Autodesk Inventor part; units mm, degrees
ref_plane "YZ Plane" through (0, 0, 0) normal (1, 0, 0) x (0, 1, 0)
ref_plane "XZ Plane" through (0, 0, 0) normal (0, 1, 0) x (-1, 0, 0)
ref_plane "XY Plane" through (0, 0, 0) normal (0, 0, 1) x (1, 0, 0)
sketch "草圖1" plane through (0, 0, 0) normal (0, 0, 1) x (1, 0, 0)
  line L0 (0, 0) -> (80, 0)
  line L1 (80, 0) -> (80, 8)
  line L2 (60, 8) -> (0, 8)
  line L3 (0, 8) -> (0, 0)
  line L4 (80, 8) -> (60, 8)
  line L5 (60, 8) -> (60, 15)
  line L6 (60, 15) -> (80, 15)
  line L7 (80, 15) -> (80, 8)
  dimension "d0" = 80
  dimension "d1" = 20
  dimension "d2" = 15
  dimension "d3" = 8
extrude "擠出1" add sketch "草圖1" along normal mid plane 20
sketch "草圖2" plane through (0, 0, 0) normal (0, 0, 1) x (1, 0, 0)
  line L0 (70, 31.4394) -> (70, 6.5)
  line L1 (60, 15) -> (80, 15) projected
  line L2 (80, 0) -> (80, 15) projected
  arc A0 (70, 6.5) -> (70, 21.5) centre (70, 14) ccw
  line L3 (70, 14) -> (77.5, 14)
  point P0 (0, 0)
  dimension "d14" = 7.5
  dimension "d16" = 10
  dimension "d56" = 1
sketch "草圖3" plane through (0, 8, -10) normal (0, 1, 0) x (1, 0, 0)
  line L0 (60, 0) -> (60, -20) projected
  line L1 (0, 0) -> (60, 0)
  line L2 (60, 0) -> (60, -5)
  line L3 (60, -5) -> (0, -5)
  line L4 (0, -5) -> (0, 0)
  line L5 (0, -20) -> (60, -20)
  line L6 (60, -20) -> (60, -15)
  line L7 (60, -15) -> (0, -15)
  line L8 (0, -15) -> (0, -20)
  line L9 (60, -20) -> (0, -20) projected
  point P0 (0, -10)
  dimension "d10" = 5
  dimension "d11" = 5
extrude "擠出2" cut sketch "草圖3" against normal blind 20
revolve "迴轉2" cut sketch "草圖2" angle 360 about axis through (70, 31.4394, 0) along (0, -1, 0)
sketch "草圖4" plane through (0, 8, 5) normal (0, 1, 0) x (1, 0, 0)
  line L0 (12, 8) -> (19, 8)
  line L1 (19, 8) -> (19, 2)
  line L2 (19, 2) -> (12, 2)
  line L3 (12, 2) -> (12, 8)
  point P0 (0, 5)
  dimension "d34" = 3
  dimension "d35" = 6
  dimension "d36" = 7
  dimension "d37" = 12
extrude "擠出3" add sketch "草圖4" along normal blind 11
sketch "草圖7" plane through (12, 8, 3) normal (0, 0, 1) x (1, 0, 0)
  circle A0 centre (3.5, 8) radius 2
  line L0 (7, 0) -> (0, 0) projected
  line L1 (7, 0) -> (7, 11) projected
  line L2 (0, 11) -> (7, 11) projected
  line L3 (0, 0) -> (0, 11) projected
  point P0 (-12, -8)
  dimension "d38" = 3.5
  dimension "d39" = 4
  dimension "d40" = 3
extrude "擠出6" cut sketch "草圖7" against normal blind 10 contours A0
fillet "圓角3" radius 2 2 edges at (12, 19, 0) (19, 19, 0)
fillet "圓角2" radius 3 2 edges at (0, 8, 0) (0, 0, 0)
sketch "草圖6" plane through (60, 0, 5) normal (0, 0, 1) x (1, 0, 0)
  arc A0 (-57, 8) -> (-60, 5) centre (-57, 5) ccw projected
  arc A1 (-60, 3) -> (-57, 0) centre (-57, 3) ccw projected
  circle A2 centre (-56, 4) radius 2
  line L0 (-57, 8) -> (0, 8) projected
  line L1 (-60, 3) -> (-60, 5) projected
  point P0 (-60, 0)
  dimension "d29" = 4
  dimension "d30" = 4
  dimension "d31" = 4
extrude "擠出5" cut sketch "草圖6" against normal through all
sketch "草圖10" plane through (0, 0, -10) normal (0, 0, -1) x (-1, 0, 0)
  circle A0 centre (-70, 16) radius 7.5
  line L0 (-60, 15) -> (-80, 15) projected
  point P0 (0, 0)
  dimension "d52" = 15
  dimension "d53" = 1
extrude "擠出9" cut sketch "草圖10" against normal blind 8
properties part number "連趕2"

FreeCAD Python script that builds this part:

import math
import FreeCAD as App
import Part
import Sketcher
from FreeCAD import Vector


def edges_at(feature, points):
    """Names of the edges that pass closest to the given points."""
    edges = feature.Shape.Edges
    near = lambda p: min(range(len(edges)), key=lambda i: edges[i].distToShape(Part.Vertex(*p))[0])
    return sorted({f"Edge{near(p) + 1}" for p in points})

doc = App.newDocument("Part")
body = doc.addObject("PartDesign::Body", "Body")

sketch1 = body.newObject("Sketcher::SketchObject", "Sketch")
sketch1.AttachmentSupport = (doc.getObject("XY_Plane"), [""])
sketch1.MapMode = "FlatFace"
sketch1.addGeometry(Part.LineSegment(Vector(0, 8, 0), Vector(0, 0, 0)), False)
sketch1.addGeometry(Part.LineSegment(Vector(0, 0, 0), Vector(80, 0, 0)), False)
sketch1.addGeometry(Part.LineSegment(Vector(80, 0, 0), Vector(80, 15, 0)), False)
sketch1.addGeometry(Part.LineSegment(Vector(80, 15, 0), Vector(60, 15, 0)), False)
sketch1.addGeometry(Part.LineSegment(Vector(60, 15, 0), Vector(60, 8, 0)), False)
sketch1.addGeometry(Part.LineSegment(Vector(60, 8, 0), Vector(0, 8, 0)), False)
sketch1.addConstraint(Sketcher.Constraint("Coincident", 0, 2, 1, 1))
sketch1.addConstraint(Sketcher.Constraint("Coincident", 1, 2, 2, 1))
sketch1.addConstraint(Sketcher.Constraint("Coincident", 2, 2, 3, 1))
sketch1.addConstraint(Sketcher.Constraint("Coincident", 3, 2, 4, 1))
sketch1.addConstraint(Sketcher.Constraint("Coincident", 4, 2, 5, 1))
sketch1.addConstraint(Sketcher.Constraint("Coincident", 5, 2, 0, 1))
sketch1.addConstraint(Sketcher.Constraint("Vertical", 0))
sketch1.addConstraint(Sketcher.Constraint("Horizontal", 1))
sketch1.addConstraint(Sketcher.Constraint("Vertical", 2))
sketch1.addConstraint(Sketcher.Constraint("Horizontal", 3))
sketch1.addConstraint(Sketcher.Constraint("Vertical", 4))
sketch1.addConstraint(Sketcher.Constraint("Horizontal", 5))
sketch1.addConstraint(Sketcher.Constraint("Coincident", 0, 2, -1, 1))
sketch1.addConstraint(Sketcher.Constraint("DistanceX", 1, 1, 1, 2, 80.0))
sketch1.addConstraint(Sketcher.Constraint("DistanceX", 3, 2, 3, 1, 20.0))
sketch1.addConstraint(Sketcher.Constraint("DistanceY", 0, 2, 0, 1, 8.0))
sketch1.addConstraint(Sketcher.Constraint("DistanceY", 2, 1, 2, 2, 15.0))
pad1 = body.newObject("PartDesign::Pad", "Pad")
pad1.Profile = sketch1
pad1.Length = 20
pad1.Midplane = True

sketch2 = body.newObject("Sketcher::SketchObject", "Sketch001")
sketch2.AttachmentSupport = (doc.getObject("XZ_Plane"), [""])
sketch2.MapMode = "FlatFace"
sketch2.AttachmentOffset = App.Placement(Vector(0, 0, -8), App.Rotation())
sketch2.addGeometry(Part.LineSegment(Vector(60, 10, 0), Vector(60, 5, 0)), False)
sketch2.addGeometry(Part.LineSegment(Vector(60, 5, 0), Vector(0, 5, 0)), False)
sketch2.addGeometry(Part.LineSegment(Vector(0, 5, 0), Vector(0, 10, 0)), False)
sketch2.addGeometry(Part.LineSegment(Vector(0, 10, 0), Vector(60, 10, 0)), False)
sketch2.addGeometry(Part.LineSegment(Vector(60, -5, 0), Vector(60, -10, 0)), False)
sketch2.addGeometry(Part.LineSegment(Vector(60, -10, 0), Vector(0, -10, 0)), False)
sketch2.addGeometry(Part.LineSegment(Vector(0, -10, 0), Vector(0, -5, 0)), False)
sketch2.addGeometry(Part.LineSegment(Vector(0, -5, 0), Vector(60, -5, 0)), False)
sketch2.addConstraint(Sketcher.Constraint("Coincident", 0, 2, 1, 1))
sketch2.addConstraint(Sketcher.Constraint("Coincident", 1, 2, 2, 1))
sketch2.addConstraint(Sketcher.Constraint("Coincident", 2, 2, 3, 1))
sketch2.addConstraint(Sketcher.Constraint("Coincident", 3, 2, 0, 1))
sketch2.addConstraint(Sketcher.Constraint("Coincident", 4, 2, 5, 1))
sketch2.addConstraint(Sketcher.Constraint("Coincident", 5, 2, 6, 1))
sketch2.addConstraint(Sketcher.Constraint("Coincident", 6, 2, 7, 1))
sketch2.addConstraint(Sketcher.Constraint("Coincident", 7, 2, 4, 1))
sketch2.addConstraint(Sketcher.Constraint("Vertical", 0))
sketch2.addConstraint(Sketcher.Constraint("Horizontal", 1))
sketch2.addConstraint(Sketcher.Constraint("Vertical", 2))
sketch2.addConstraint(Sketcher.Constraint("Horizontal", 3))
sketch2.addConstraint(Sketcher.Constraint("Vertical", 4))
sketch2.addConstraint(Sketcher.Constraint("Horizontal", 5))
sketch2.addConstraint(Sketcher.Constraint("Vertical", 6))
sketch2.addConstraint(Sketcher.Constraint("Horizontal", 7))
sketch2.addConstraint(Sketcher.Constraint("Symmetric", 2, 2, 5, 2, -1, 1))
sketch2.addConstraint(Sketcher.Constraint("Symmetric", 1, 2, 6, 2, -1))
sketch2.addConstraint(Sketcher.Constraint("Vertical", 3, 2, 4, 2))
sketch2.addConstraint(Sketcher.Constraint("DistanceY", 0, 2, 0, 1, 5.0))
sketch2.addConstraint(Sketcher.Constraint("DistanceY", -1, 1, 0, 2, 5.0))
sketch2.addConstraint(Sketcher.Constraint("DistanceX", 1, 2, 1, 1, 60.0))
pocket1 = body.newObject("PartDesign::Pocket", "Pocket")
pocket1.Profile = sketch2
pocket1.Length = 20
pocket1.Reversed = True

sketch3 = body.newObject("Sketcher::SketchObject", "Sketch002")
sketch3.AttachmentSupport = (doc.getObject("XY_Plane"), [""])
sketch3.MapMode = "FlatFace"
sketch3.addGeometry(Part.ArcOfCircle(Part.Circle(Vector(70, 14, 0), Vector(0, 0, 1), 8), math.radians(-90), math.radians(90)), False)
sketch3.addGeometry(Part.LineSegment(Vector(70, 22, 0), Vector(70, 6, 0)), False)
sketch3.addGeometry(Part.LineSegment(Vector(70, 22, 0), Vector(70, 6, 0)), True)
sketch3.addConstraint(Sketcher.Constraint("Coincident", 0, 1, 1, 2))
sketch3.addConstraint(Sketcher.Constraint("Coincident", 1, 1, 0, 2))
sketch3.addConstraint(Sketcher.Constraint("Vertical", 1))
sketch3.addConstraint(Sketcher.Constraint("Vertical", 2))
sketch3.addConstraint(Sketcher.Constraint("Coincident", 2, 1, 1, 1))
sketch3.addConstraint(Sketcher.Constraint("Equal", 1, 2))
sketch3.addConstraint(Sketcher.Constraint("Radius", 0, 7.5))
sketch3.addConstraint(Sketcher.Constraint("DistanceX", -1, 1, 0, 3, 70.0))
sketch3.addConstraint(Sketcher.Constraint("DistanceY", -1, 1, 0, 3, 14.0))
sketch3.addConstraint(Sketcher.Constraint("DistanceX", -1, 1, 0, 1, 70.0))
groove = body.newObject("PartDesign::Groove", "Groove")
groove.Profile = sketch3
groove.ReferenceAxis = (sketch3, ["Axis0"])
groove.Angle = 360

sketch4 = body.newObject("Sketcher::SketchObject", "Sketch003")
sketch4.AttachmentSupport = (doc.getObject("XZ_Plane"), [""])
sketch4.MapMode = "FlatFace"
sketch4.AttachmentOffset = App.Placement(Vector(0, 0, -8), App.Rotation())
sketch4.addGeometry(Part.LineSegment(Vector(19, -3, 0), Vector(12, -3, 0)), False)
sketch4.addGeometry(Part.LineSegment(Vector(12, -3, 0), Vector(12, 3, 0)), False)
sketch4.addGeometry(Part.LineSegment(Vector(12, 3, 0), Vector(19, 3, 0)), False)
sketch4.addGeometry(Part.LineSegment(Vector(19, 3, 0), Vector(19, -3, 0)), False)
sketch4.addConstraint(Sketcher.Constraint("Coincident", 0, 2, 1, 1))
sketch4.addConstraint(Sketcher.Constraint("Coincident", 1, 2, 2, 1))
sketch4.addConstraint(Sketcher.Constraint("Coincident", 2, 2, 3, 1))
sketch4.addConstraint(Sketcher.Constraint("Coincident", 3, 2, 0, 1))
sketch4.addConstraint(Sketcher.Constraint("Horizontal", 0))
sketch4.addConstraint(Sketcher.Constraint("Vertical", 1))
sketch4.addConstraint(Sketcher.Constraint("Horizontal", 2))
sketch4.addConstraint(Sketcher.Constraint("Vertical", 3))
sketch4.addConstraint(Sketcher.Constraint("DistanceX", 0, 2, 0, 1, 7.0))
sketch4.addConstraint(Sketcher.Constraint("DistanceY", 1, 1, 1, 2, 6.0))
sketch4.addConstraint(Sketcher.Constraint("DistanceX", -1, 1, 0, 2, 12.0))
sketch4.addConstraint(Sketcher.Constraint("DistanceY", 0, 2, -1, 1, 3.0))
pad2 = body.newObject("PartDesign::Pad", "Pad001")
pad2.Profile = sketch4
pad2.Length = 11
pad2.Reversed = True

sketch5 = body.newObject("Sketcher::SketchObject", "Sketch004")
sketch5.AttachmentSupport = (doc.getObject("XY_Plane"), [""])
sketch5.MapMode = "FlatFace"
sketch5.AttachmentOffset = App.Placement(Vector(0, 0, 3), App.Rotation())
sketch5.addGeometry(Part.Circle(Vector(15.5, 16, 0), Vector(0, 0, 1), 2), False)
sketch5.addConstraint(Sketcher.Constraint("Diameter", 0, 4.0))
sketch5.addConstraint(Sketcher.Constraint("DistanceY", -1, 1, 0, 3, 16.0))
sketch5.addConstraint(Sketcher.Constraint("DistanceX", -1, 1, 0, 3, 15.5))
pocket2 = body.newObject("PartDesign::Pocket", "Pocket001")
pocket2.Profile = sketch5
pocket2.Length = 10
doc.recompute()

fillet = body.newObject("PartDesign::Fillet", "Fillet")
fillet.Base = (pocket2, edges_at(pocket2, [(12, 19, 0), (19, 19, 0)]))
fillet.Radius = 2
doc.recompute()

fillet2 = body.newObject("PartDesign::Fillet", "Fillet001")
fillet2.Base = (fillet, edges_at(fillet, [(0, 8, 0), (0, 0, 0)]))
fillet2.Radius = 3

sketch6 = body.newObject("Sketcher::SketchObject", "Sketch005")
sketch6.AttachmentSupport = (doc.getObject("XY_Plane"), [""])
sketch6.MapMode = "FlatFace"
sketch6.AttachmentOffset = App.Placement(Vector(0, 0, 5), App.Rotation())
sketch6.addGeometry(Part.Circle(Vector(4, 4, 0), Vector(0, 0, 1), 2), False)
sketch6.addConstraint(Sketcher.Constraint("Diameter", 0, 4.0))
sketch6.addConstraint(Sketcher.Constraint("DistanceX", -1, 1, 0, 3, 4.0))
sketch6.addConstraint(Sketcher.Constraint("DistanceY", -1, 1, 0, 3, 4.0))
pocket3 = body.newObject("PartDesign::Pocket", "Pocket002")
pocket3.Profile = sketch6
pocket3.Type = "ThroughAll"

sketch7 = body.newObject("Sketcher::SketchObject", "Sketch006")
sketch7.AttachmentSupport = (doc.getObject("XY_Plane"), [""])
sketch7.MapMode = "FlatFace"
sketch7.AttachmentOffset = App.Placement(Vector(0, 0, -10), App.Rotation())
sketch7.addGeometry(Part.Circle(Vector(70, 16, 0), Vector(0, 0, 1), 8), False)
sketch7.addConstraint(Sketcher.Constraint("Diameter", 0, 15.0))
sketch7.addConstraint(Sketcher.Constraint("DistanceX", -1, 1, 0, 3, 70.0))
sketch7.addConstraint(Sketcher.Constraint("DistanceY", -1, 1, 0, 3, 16.0))
pocket4 = body.newObject("PartDesign::Pocket", "Pocket003")
pocket4.Profile = sketch7
pocket4.Length = 8
pocket4.Reversed = True

doc.recompute()
